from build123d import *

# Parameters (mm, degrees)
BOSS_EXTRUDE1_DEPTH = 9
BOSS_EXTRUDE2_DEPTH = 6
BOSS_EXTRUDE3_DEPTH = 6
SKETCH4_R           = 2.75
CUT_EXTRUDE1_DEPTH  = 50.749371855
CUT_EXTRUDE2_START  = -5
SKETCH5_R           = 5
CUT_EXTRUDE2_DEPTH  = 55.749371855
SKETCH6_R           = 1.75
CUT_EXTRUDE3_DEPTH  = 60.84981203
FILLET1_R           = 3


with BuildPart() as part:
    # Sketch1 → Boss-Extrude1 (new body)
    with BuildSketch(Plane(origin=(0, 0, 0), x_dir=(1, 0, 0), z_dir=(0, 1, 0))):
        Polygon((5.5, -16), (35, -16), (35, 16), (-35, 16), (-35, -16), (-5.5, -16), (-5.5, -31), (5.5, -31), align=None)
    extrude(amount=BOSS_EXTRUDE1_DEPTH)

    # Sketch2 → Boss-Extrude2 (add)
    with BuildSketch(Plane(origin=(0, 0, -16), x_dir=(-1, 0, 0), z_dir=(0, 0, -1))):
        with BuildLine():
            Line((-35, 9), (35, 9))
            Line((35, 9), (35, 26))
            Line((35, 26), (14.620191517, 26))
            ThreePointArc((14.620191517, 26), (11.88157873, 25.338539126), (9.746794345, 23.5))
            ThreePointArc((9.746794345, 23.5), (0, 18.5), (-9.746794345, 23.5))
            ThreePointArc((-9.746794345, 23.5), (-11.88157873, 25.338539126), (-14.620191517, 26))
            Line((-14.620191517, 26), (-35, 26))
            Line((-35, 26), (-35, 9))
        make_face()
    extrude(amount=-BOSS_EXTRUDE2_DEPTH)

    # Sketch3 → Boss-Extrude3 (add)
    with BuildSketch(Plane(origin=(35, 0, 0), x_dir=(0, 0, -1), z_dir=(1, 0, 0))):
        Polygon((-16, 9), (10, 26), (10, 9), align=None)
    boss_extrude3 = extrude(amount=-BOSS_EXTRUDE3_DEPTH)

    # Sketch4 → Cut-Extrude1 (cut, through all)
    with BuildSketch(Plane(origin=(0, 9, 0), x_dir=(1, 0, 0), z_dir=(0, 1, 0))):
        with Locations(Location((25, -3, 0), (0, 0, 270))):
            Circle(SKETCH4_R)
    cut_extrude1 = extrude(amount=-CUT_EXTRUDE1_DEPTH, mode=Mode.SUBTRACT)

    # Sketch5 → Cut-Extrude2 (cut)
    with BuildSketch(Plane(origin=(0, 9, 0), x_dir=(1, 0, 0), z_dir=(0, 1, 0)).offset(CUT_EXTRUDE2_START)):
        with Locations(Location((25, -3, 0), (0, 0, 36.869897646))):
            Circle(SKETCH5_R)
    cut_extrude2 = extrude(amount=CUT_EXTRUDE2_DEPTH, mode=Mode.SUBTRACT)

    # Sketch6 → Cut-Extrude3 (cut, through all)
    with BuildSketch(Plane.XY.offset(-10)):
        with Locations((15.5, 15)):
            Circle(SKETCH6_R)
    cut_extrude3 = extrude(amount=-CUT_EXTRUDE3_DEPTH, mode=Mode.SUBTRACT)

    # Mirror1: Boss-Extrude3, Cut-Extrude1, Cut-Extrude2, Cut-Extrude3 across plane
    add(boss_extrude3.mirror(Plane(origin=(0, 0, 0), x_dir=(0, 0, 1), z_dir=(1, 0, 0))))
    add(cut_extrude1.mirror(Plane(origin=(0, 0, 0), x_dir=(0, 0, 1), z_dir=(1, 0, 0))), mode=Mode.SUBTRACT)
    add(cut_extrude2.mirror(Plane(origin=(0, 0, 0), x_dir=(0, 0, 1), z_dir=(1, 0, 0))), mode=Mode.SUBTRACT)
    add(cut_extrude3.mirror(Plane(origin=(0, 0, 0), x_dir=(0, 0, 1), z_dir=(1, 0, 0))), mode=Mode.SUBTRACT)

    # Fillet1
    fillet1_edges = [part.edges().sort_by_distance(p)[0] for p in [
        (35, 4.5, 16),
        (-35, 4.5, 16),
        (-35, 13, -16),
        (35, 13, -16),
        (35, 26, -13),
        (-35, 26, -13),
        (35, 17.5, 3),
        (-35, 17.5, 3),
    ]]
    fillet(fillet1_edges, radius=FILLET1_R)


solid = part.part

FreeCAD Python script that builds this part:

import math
import FreeCAD as App
import Part
import Sketcher
from FreeCAD import Vector


def edges_at(feature, points):
    """Names of the edges that pass closest to the given points."""
    edges = feature.Shape.Edges
    near = lambda p: min(range(len(edges)), key=lambda i: edges[i].distToShape(Part.Vertex(*p))[0])
    return sorted({f"Edge{near(p) + 1}" for p in points})


def add_polygon(sketch, points):
    """Adds a closed chain of lines whose ends are joined by coincident constraints."""
    first, n = sketch.GeometryCount, len(points)
    for a, b in zip(points, points[1:] + points[:1]):
        sketch.addGeometry(Part.LineSegment(App.Vector(*a, 0), App.Vector(*b, 0)), False)
    for i in range(n):
        sketch.addConstraint(Sketcher.Constraint("Coincident", first + i, 2, first + (i + 1) % n, 1))

doc = App.newDocument("Part")
body = doc.addObject("PartDesign::Body", "Body")

# Sketch on XZ plane
sketch1 = body.newObject("Sketcher::SketchObject", "Sketch")
sketch1.AttachmentSupport = (doc.getObject("XZ_Plane"), [""])
sketch1.MapMode = "FlatFace"
add_polygon(sketch1, [(6, 16), (35, 16), (35, -16), (-35, -16), (-35, 16), (-6, 16), (-6, 31), (6, 31)])  # lines 0-7
sketch1.addConstraint(Sketcher.Constraint("Horizontal", 0))
sketch1.addConstraint(Sketcher.Constraint("Vertical", 1))
sketch1.addConstraint(Sketcher.Constraint("Horizontal", 2))
sketch1.addConstraint(Sketcher.Constraint("Vertical", 3))
sketch1.addConstraint(Sketcher.Constraint("Horizontal", 4))
sketch1.addConstraint(Sketcher.Constraint("Vertical", 5))
sketch1.addConstraint(Sketcher.Constraint("Horizontal", 6))
sketch1.addConstraint(Sketcher.Constraint("Vertical", 7))
sketch1.addConstraint(Sketcher.Constraint("Symmetric", 0, 2, 2, 2, -1, 1))
sketch1.addConstraint(Sketcher.Constraint("Symmetric", 4, 2, 7, 2, -2))
sketch1.addConstraint(Sketcher.Constraint("DistanceX", 2, 2, 2, 1, 70.0))
sketch1.addConstraint(Sketcher.Constraint("DistanceX", 6, 1, 6, 2, 11.0))
sketch1.addConstraint(Sketcher.Constraint("DistanceY", 1, 2, 1, 1, 32.0))
sketch1.addConstraint(Sketcher.Constraint("DistanceY", 5, 1, 5, 2, 15.0))
pad1 = body.newObject("PartDesign::Pad", "Pad")
pad1.Profile = sketch1
pad1.Length = 9
pad1.Reversed = True

# Sketch on XY plane
sketch2 = body.newObject("Sketcher::SketchObject", "Sketch001")
sketch2.AttachmentSupport = (doc.getObject("XY_Plane"), [""])
sketch2.MapMode = "FlatFace"
sketch2.AttachmentOffset = App.Placement(Vector(0, 0, -16), App.Rotation())
sketch2.addGeometry(Part.LineSegment(Vector(35, 9, 0), Vector(-35, 9, 0)), False)
sketch2.addGeometry(Part.LineSegment(Vector(-35, 9, 0), Vector(-35, 26, 0)), False)
sketch2.addGeometry(Part.LineSegment(Vector(-35, 26, 0), Vector(-15, 26, 0)), False)
sketch2.addGeometry(Part.ArcOfCircle(Part.Circle(Vector(-15, 20, 0), Vector(0, 0, 1), 6), math.radians(36), math.radians(90)), False)
sketch2.addGeometry(Part.ArcOfCircle(Part.Circle(Vector(0, 30, 0), Vector(0, 0, 1), 12), math.radians(-144), math.radians(-36)), False)
sketch2.addGeometry(Part.ArcOfCircle(Part.Circle(Vector(15, 20, 0), Vector(0, 0, 1), 6), math.radians(90), math.radians(144)), False)
sketch2.addGeometry(Part.LineSegment(Vector(15, 26, 0), Vector(35, 26, 0)), False)
sketch2.addGeometry(Part.LineSegment(Vector(35, 26, 0), Vector(35, 9, 0)), False)
sketch2.addConstraint(Sketcher.Constraint("Coincident", 0, 2, 1, 1))
sketch2.addConstraint(Sketcher.Constraint("Coincident", 1, 2, 2, 1))
sketch2.addConstraint(Sketcher.Constraint("Tangent", 2, 2, 3, 2))
sketch2.addConstraint(Sketcher.Constraint("Tangent", 3, 1, 4, 1))
sketch2.addConstraint(Sketcher.Constraint("Tangent", 4, 2, 5, 2))
sketch2.addConstraint(Sketcher.Constraint("Tangent", 5, 1, 6, 1))
sketch2.addConstraint(Sketcher.Constraint("Coincident", 6, 2, 7, 1))
sketch2.addConstraint(Sketcher.Constraint("Coincident", 7, 2, 0, 1))
sketch2.addConstraint(Sketcher.Constraint("Horizontal", 0))
sketch2.addConstraint(Sketcher.Constraint("Vertical", 1))
sketch2.addConstraint(Sketcher.Constraint("Horizontal", 2))
sketch2.addConstraint(Sketcher.Constraint("Horizontal", 6))
sketch2.addConstraint(Sketcher.Constraint("Vertical", 7))
sketch2.addConstraint(Sketcher.Constraint("Equal", 3, 5))
sketch2.addConstraint(Sketcher.Constraint("Symmetric", 3, 3, 5, 3, -2))
sketch2.addConstraint(Sketcher.Constraint("Equal", 2, 6))
sketch2.addConstraint(Sketcher.Constraint("Radius", 3, 6.0))
sketch2.addConstraint(Sketcher.Constraint("Radius", 4, 12.0))
sketch2.addConstraint(Sketcher.Constraint("DistanceX", 0, 2, 0, 1, 70.0))
sketch2.addConstraint(Sketcher.Constraint("DistanceY", 1, 1, 1, 2, 17.0))
sketch2.addConstraint(Sketcher.Constraint("DistanceY", -1, 1, 3, 3, 20.0))
sketch2.addConstraint(Sketcher.Constraint("DistanceY", 3, 1, 4, 3, 7.0))
pad2 = body.newObject("PartDesign::Pad", "Pad001")
pad2.Profile = sketch2
pad2.Length = 6

# Sketch on YZ plane
sketch3 = body.newObject("Sketcher::SketchObject", "Sketch002")
sketch3.AttachmentSupport = (doc.getObject("YZ_Plane"), [""])
sketch3.MapMode = "FlatFace"
sketch3.AttachmentOffset = App.Placement(Vector(0, 0, 35), App.Rotation())
add_polygon(sketch3, [(26, -10), (9, 16), (9, -10)])  # lines 0-2
sketch3.addConstraint(Sketcher.Constraint("Vertical", 1))
sketch3.addConstraint(Sketcher.Constraint("Horizontal", 2))
sketch3.addConstraint(Sketcher.Constraint("DistanceX", 2, 1, 2, 2, 17.0))
sketch3.addConstraint(Sketcher.Constraint("DistanceY", 1, 2, 1, 1, 26.0))
sketch3.addConstraint(Sketcher.Constraint("DistanceX", -1, 1, 0, 2, 9.0))
sketch3.addConstraint(Sketcher.Constraint("DistanceY", -1, 1, 0, 2, 16.0))
pad3 = body.newObject("PartDesign::Pad", "Pad002")
pad3.Profile = sketch3
pad3.Length = 6
pad3.Reversed = True

# Sketch on XZ plane
sketch4 = body.newObject("Sketcher::SketchObject", "Sketch003")
sketch4.AttachmentSupport = (doc.getObject("XZ_Plane"), [""])
sketch4.MapMode = "FlatFace"
sketch4.AttachmentOffset = App.Placement(Vector(0, 0, -9), App.Rotation())
sketch4.addGeometry(Part.Circle(Vector(25, 3, 0), Vector(0, 0, 1), 2.8), False)
sketch4.addConstraint(Sketcher.Constraint("Diameter", 0, 5.5))
sketch4.addConstraint(Sketcher.Constraint("DistanceX", -1, 1, 0, 3, 25.0))
sketch4.addConstraint(Sketcher.Constraint("DistanceY", -1, 1, 0, 3, 3.0))
pocket1 = body.newObject("PartDesign::Pocket", "Pocket")
pocket1.Profile = sketch4
pocket1.Type = "ThroughAll"
pocket1.Reversed = True

# Sketch on XZ plane
sketch5 = body.newObject("Sketcher::SketchObject", "Sketch004")
sketch5.AttachmentSupport = (doc.getObject("XZ_Plane"), [""])
sketch5.MapMode = "FlatFace"
sketch5.AttachmentOffset = App.Placement(Vector(0, 0, -4), App.Rotation())
sketch5.addGeometry(Part.Circle(Vector(25, 3, 0), Vector(0, 0, 1), 5), False)
sketch5.addConstraint(Sketcher.Constraint("Diameter", 0, 10.0))
sketch5.addConstraint(Sketcher.Constraint("DistanceX", -1, 1, 0, 3, 25.0))
sketch5.addConstraint(Sketcher.Constraint("DistanceY", -1, 1, 0, 3, 3.0))
pocket2 = body.newObject("PartDesign::Pocket", "Pocket001")
pocket2.Profile = sketch5
pocket2.Length = 55.749372

# Sketch on XY plane
sketch6 = body.newObject("Sketcher::SketchObject", "Sketch005")
sketch6.AttachmentSupport = (doc.getObject("XY_Plane"), [""])
sketch6.MapMode = "FlatFace"
sketch6.AttachmentOffset = App.Placement(Vector(0, 0, -10), App.Rotation())
sketch6.addGeometry(Part.Circle(Vector(15.5, 15, 0), Vector(0, 0, 1), 1.8), False)
sketch6.addConstraint(Sketcher.Constraint("Diameter", 0, 3.5))
sketch6.addConstraint(Sketcher.Constraint("DistanceY", -1, 1, 0, 3, 15.0))
sketch6.addConstraint(Sketcher.Constraint("DistanceX", -1, 1, 0, 3, 15.5))
pocket3 = body.newObject("PartDesign::Pocket", "Pocket002")
pocket3.Profile = sketch6
pocket3.Type = "ThroughAll"
doc.recompute()

mirrored = body.newObject("PartDesign::Mirrored", "Mirrored")
mirrored.Originals = [pad3, pocket1, pocket2, pocket3]
mirrored.MirrorPlane = (doc.getObject("YZ_Plane"), [""])
body.Tip = mirrored
doc.recompute()

fillet = body.newObject("PartDesign::Fillet", "Fillet")
fillet.Base = (mirrored, edges_at(mirrored, [
    (35, 4.5, 16),
    (-35, 4.5, 16),
    (-35, 13, -16),
    (35, 13, -16),
    (35, 26, -13),
    (-35, 26, -13),
    (35, 17.5, 3),
    (-35, 17.5, 3),
]))
fillet.Radius = 3

doc.recompute()
